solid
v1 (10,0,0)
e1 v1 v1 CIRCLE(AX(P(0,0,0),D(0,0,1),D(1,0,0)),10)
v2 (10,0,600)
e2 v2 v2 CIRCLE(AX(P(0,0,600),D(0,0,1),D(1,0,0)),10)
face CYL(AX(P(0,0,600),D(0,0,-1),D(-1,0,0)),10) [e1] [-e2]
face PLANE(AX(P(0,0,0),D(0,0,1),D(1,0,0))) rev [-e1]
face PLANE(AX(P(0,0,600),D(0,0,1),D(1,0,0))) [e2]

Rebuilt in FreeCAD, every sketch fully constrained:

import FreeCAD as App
import Part
import Sketcher
Q = App.Units.Quantity

doc = App.newDocument("Part")
body = doc.addObject("PartDesign::Body", "Body")

sketch1 = body.newObject("Sketcher::SketchObject", "Sketch")
sketch1.AttachmentSupport = (doc.getObject("XY_Plane"), [""])
sketch1.MapMode = "FlatFace"
sketch1.addGeometry(Part.Circle(App.Vector(0, 0, 0), App.Vector(0, 0, 1), 10), False)
sketch1.addConstraint([
    Sketcher.Constraint("Coincident", 0, 3, -1, 1),
    Sketcher.Constraint("Diameter", 0, Q("20 mm")),
])
pad1 = body.newObject("PartDesign::Pad", "Pad")
pad1.Profile = sketch1
pad1.Length = 600

doc.recompute()
